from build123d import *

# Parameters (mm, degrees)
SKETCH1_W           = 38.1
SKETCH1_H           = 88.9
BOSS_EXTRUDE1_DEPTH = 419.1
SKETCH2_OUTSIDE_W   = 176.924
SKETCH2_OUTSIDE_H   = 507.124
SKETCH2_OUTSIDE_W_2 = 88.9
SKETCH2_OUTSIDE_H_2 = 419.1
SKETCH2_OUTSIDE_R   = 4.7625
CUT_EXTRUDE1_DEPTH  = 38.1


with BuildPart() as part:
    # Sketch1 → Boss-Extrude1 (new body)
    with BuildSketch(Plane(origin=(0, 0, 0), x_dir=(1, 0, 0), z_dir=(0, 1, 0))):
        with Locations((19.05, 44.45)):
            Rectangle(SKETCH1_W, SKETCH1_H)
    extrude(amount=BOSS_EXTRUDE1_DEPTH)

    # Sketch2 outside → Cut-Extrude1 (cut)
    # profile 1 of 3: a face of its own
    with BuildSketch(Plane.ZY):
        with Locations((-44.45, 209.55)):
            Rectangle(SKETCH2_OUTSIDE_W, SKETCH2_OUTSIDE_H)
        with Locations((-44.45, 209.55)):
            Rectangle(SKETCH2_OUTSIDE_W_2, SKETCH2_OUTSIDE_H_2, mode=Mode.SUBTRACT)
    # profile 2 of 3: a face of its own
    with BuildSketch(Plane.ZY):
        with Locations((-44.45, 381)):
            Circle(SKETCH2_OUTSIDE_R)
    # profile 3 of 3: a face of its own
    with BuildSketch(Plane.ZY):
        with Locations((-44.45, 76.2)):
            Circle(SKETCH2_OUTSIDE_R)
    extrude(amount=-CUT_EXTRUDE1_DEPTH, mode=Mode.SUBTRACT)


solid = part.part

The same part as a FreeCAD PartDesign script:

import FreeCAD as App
import Part
import Sketcher

V = App.Vector
Q = App.Units.Quantity

doc = App.newDocument("Part")
body = doc.addObject("PartDesign::Body", "Body")

# Sketch on XZ plane
sketch1 = body.newObject("Sketcher::SketchObject", "Sketch")
sketch1.AttachmentSupport = (doc.getObject("XZ_Plane"), [""])
sketch1.MapMode = "FlatFace"
sketch1.addGeometry([
    Part.LineSegment(V(0, -88.9, 0), V(0, 0, 0)),
    Part.LineSegment(V(0, 0, 0), V(38.1, 0, 0)),
    Part.LineSegment(V(38.1, 0, 0), V(38.1, -88.9, 0)),
    Part.LineSegment(V(38.1, -88.9, 0), V(0, -88.9, 0)),
], False)
sketch1.addConstraint([
    Sketcher.Constraint("Coincident", 0, 2, 1, 1),
    Sketcher.Constraint("Coincident", 1, 2, 2, 1),
    Sketcher.Constraint("Coincident", 2, 2, 3, 1),
    Sketcher.Constraint("Coincident", 3, 2, 0, 1),
    Sketcher.Constraint("Vertical", 0),
    Sketcher.Constraint("Horizontal", 1),
    Sketcher.Constraint("Vertical", 2),
    Sketcher.Constraint("Horizontal", 3),
    Sketcher.Constraint("Coincident", 0, 2, -1, 1),
    Sketcher.Constraint("DistanceX", 1, 1, 1, 2, Q("1.5 in")),
    Sketcher.Constraint("DistanceY", 0, 1, 0, 2, Q("3.5 in")),
])
pad1 = body.newObject("PartDesign::Pad", "Pad")
pad1.Profile = sketch1
pad1.Length = Q("16.5 in")
pad1.Reversed = True

# Sketch on YZ plane
sketch2 = body.newObject("Sketcher::SketchObject", "Sketch001")
sketch2.AttachmentSupport = (doc.getObject("YZ_Plane"), [""])
sketch2.MapMode = "FlatFace"
sketch2.addGeometry([
    Part.LineSegment(V(463.112, -132.912, 0), V(-44.012, -132.912, 0)),  # 0
    Part.LineSegment(V(-44.012, -132.912, 0), V(-44.012, 44.012, 0)),  # 1
    Part.LineSegment(V(-44.012, 44.012, 0), V(463.112, 44.012, 0)),  # 2
    Part.LineSegment(V(463.112, 44.012, 0), V(463.112, -132.912, 0)),  # 3
    Part.LineSegment(V(0, 0, 0), V(0, -88.9, 0)),  # 4
    Part.LineSegment(V(0, -88.9, 0), V(419.1, -88.9, 0)),  # 5
    Part.LineSegment(V(419.1, -88.9, 0), V(419.1, 0, 0)),  # 6
    Part.LineSegment(V(419.1, 0, 0), V(0, 0, 0)),  # 7
    Part.Circle(V(381, -44.45, 0), V(0, 0, 1), 4.7625),  # 8
    Part.Circle(V(76.2, -44.45, 0), V(0, 0, 1), 4.7625),  # 9
], False)
sketch2.addConstraint([
    Sketcher.Constraint("Coincident", 0, 2, 1, 1),
    Sketcher.Constraint("Coincident", 1, 2, 2, 1),
    Sketcher.Constraint("Coincident", 2, 2, 3, 1),
    Sketcher.Constraint("Coincident", 3, 2, 0, 1),
    Sketcher.Constraint("Coincident", 4, 2, 5, 1),
    Sketcher.Constraint("Coincident", 5, 2, 6, 1),
    Sketcher.Constraint("Coincident", 6, 2, 7, 1),
    Sketcher.Constraint("Coincident", 7, 2, 4, 1),
    Sketcher.Constraint("Horizontal", 0),
    Sketcher.Constraint("Vertical", 1),
    Sketcher.Constraint("Horizontal", 2),
    Sketcher.Constraint("Vertical", 3),
    Sketcher.Constraint("Vertical", 4),
    Sketcher.Constraint("Horizontal", 5),
    Sketcher.Constraint("Vertical", 6),
    Sketcher.Constraint("Horizontal", 7),
    Sketcher.Constraint("Coincident", 7, 2, -1, 1),
    Sketcher.Constraint("Equal", 8, 9),
    Sketcher.Constraint("Horizontal", 8, 3, 9, 3),
    Sketcher.Constraint("Diameter", 8, Q("0.375 in")),
    Sketcher.Constraint("DistanceX", 5, 1, 5, 2, Q("16.5 in")),
    Sketcher.Constraint("DistanceY", 4, 2, 4, 1, Q("3.5 in")),
    Sketcher.Constraint("DistanceX", -1, 1, 8, 3, Q("15 in")),
    Sketcher.Constraint("DistanceX", -1, 1, 9, 3, Q("3 in")),
    Sketcher.Constraint("DistanceY", 8, 3, -1, 1, Q("1.75 in")),
    Sketcher.Constraint("DistanceX", 0, 2, 0, 1, Q("507.124 mm")),
    Sketcher.Constraint("DistanceY", 1, 1, 1, 2, Q("176.924 mm")),
    Sketcher.Constraint("DistanceX", 0, 2, -1, 1, Q("44.012 mm")),
    Sketcher.Constraint("DistanceY", 0, 2, -1, 1, Q("132.912 mm")),
])
pocket1 = body.newObject("PartDesign::Pocket", "Pocket")
pocket1.Profile = sketch2
pocket1.Length = Q("1.5 in")
pocket1.Reversed = True

doc.recompute()
